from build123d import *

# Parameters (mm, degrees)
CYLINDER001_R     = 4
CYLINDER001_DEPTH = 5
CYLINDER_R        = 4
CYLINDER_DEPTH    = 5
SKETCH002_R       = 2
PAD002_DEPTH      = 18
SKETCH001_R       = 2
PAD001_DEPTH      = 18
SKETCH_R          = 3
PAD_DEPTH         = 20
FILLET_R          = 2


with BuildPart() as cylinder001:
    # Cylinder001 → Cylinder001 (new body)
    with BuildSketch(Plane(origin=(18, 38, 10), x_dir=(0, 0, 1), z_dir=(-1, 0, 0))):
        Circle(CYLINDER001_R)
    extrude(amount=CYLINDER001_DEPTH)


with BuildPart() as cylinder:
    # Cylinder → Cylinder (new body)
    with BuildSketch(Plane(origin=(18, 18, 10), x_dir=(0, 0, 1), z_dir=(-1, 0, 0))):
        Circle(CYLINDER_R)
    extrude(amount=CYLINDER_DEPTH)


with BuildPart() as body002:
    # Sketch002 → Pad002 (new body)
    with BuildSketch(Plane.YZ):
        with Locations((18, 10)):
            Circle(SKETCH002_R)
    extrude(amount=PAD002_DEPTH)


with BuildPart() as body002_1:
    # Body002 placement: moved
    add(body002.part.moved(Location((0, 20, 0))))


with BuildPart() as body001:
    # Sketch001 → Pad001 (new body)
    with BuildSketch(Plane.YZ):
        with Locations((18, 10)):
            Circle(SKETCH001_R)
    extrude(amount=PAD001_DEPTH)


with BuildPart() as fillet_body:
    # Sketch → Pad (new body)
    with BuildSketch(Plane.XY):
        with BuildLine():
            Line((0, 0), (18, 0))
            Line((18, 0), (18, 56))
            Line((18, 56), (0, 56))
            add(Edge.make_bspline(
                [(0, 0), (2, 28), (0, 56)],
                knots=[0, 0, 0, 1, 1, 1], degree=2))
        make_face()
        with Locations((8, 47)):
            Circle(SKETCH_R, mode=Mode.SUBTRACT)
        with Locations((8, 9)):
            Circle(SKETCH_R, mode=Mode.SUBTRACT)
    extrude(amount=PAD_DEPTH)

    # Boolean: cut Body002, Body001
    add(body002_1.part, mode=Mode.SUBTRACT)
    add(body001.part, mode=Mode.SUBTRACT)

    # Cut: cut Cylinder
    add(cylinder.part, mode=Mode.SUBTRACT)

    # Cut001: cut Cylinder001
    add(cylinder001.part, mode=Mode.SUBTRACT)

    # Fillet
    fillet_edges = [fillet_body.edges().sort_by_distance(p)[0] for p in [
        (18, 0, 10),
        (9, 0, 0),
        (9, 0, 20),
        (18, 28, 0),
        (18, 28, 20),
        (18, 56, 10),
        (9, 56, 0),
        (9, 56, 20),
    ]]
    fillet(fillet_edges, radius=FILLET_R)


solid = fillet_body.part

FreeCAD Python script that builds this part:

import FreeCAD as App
import Part
import Sketcher
from FreeCAD import Vector


def edges_at(feature, points):
    """Names of the edges that pass closest to the given points."""
    edges = feature.Shape.Edges
    near = lambda p: min(range(len(edges)), key=lambda i: edges[i].distToShape(Part.Vertex(*p))[0])
    return sorted({f"Edge{near(p) + 1}" for p in points})

doc = App.newDocument("Part")
body = doc.addObject("PartDesign::Body", "Body")

sketch1 = body.newObject("Sketcher::SketchObject", "Sketch")
sketch1.AttachmentSupport = (doc.getObject("YZ_Plane"), [""])
sketch1.MapMode = "FlatFace"
sketch1.AttachmentOffset = App.Placement(Vector(0, 0, 18), App.Rotation())
sketch1.addGeometry(Part.Circle(Vector(38, 10, 0), Vector(0, 0, 1), 4), False)
sketch1.addConstraint([
    Sketcher.Constraint("Diameter", 0, 8.0),
    Sketcher.Constraint("DistanceX", -1, 1, 0, 3, 38.0),
    Sketcher.Constraint("DistanceY", -1, 1, 0, 3, 10.0),
])
pad1 = body.newObject("PartDesign::Pad", "Pad")
pad1.Profile = sketch1
pad1.Length = 5
pad1.Reversed = True
body2 = doc.addObject("PartDesign::Body", "Body001")

sketch2 = body2.newObject("Sketcher::SketchObject", "Sketch001")
sketch2.AttachmentSupport = (doc.getObject("YZ_Plane001"), [""])
sketch2.MapMode = "FlatFace"
sketch2.AttachmentOffset = App.Placement(Vector(0, 0, 18), App.Rotation())
sketch2.addGeometry(Part.Circle(Vector(18, 10, 0), Vector(0, 0, 1), 4), False)
sketch2.addConstraint([
    Sketcher.Constraint("Diameter", 0, 8.0),
    Sketcher.Constraint("DistanceX", -1, 1, 0, 3, 18.0),
    Sketcher.Constraint("DistanceY", -1, 1, 0, 3, 10.0),
])
pad2 = body2.newObject("PartDesign::Pad", "Pad001")
pad2.Profile = sketch2
pad2.Length = 5
pad2.Reversed = True
body3 = doc.addObject("PartDesign::Body", "Body002")

sketch3 = body3.newObject("Sketcher::SketchObject", "Sketch002")
sketch3.AttachmentSupport = (doc.getObject("YZ_Plane002"), [""])
sketch3.MapMode = "FlatFace"
sketch3.addGeometry(Part.Circle(Vector(18, 10, 0), Vector(0, 0, 1), 2), False)
sketch3.addConstraint([
    Sketcher.Constraint("Diameter", 0, 4.0),
    Sketcher.Constraint("DistanceX", -1, 1, 0, 3, 18.0),
    Sketcher.Constraint("DistanceY", -1, 1, 0, 3, 10.0),
])
pad3 = body3.newObject("PartDesign::Pad", "Pad002")
pad3.Profile = sketch3
pad3.Length = 18
body4 = doc.addObject("PartDesign::Body", "Body003")
doc.recompute()

body3.Placement = App.Placement(Vector(0, 20, 0), App.Rotation(Vector(0, 0, 1), 0))
boolean = body4.newObject("PartDesign::Boolean", "Boolean")
boolean.Type = "Fuse"
boolean.addObjects([body3])
body5 = doc.addObject("PartDesign::Body", "Body004")

sketch4 = body5.newObject("Sketcher::SketchObject", "Sketch003")
sketch4.AttachmentSupport = (doc.getObject("YZ_Plane004"), [""])
sketch4.MapMode = "FlatFace"
sketch4.addGeometry(Part.Circle(Vector(18, 10, 0), Vector(0, 0, 1), 2), False)
sketch4.addConstraint([
    Sketcher.Constraint("Diameter", 0, 4.0),
    Sketcher.Constraint("DistanceX", -1, 1, 0, 3, 18.0),
    Sketcher.Constraint("DistanceY", -1, 1, 0, 3, 10.0),
])
pad4 = body5.newObject("PartDesign::Pad", "Pad003")
pad4.Profile = sketch4
pad4.Length = 18
body6 = doc.addObject("PartDesign::Body", "Body005")

sketch5 = body6.newObject("Sketcher::SketchObject", "Sketch004")
sketch5.AttachmentSupport = (doc.getObject("XY_Plane005"), [""])
sketch5.MapMode = "FlatFace"
sketch5.addGeometry([
    Part.LineSegment(Vector(0, 0, 0), Vector(18, 0, 0)),
    Part.LineSegment(Vector(18, 0, 0), Vector(18, 56, 0)),
    Part.LineSegment(Vector(18, 56, 0), Vector(0, 56, 0)),
    Part.BSplineCurve([Vector(0, 0, 0), Vector(2, 28, 0), Vector(0, 56, 0)], [3, 3], [0, 1], False, 2, [1, 1, 1], False),
    Part.Circle(Vector(8, 9, 0), Vector(0, 0, 1), 3),
    Part.Circle(Vector(8, 47, 0), Vector(0, 0, 1), 3),
], False)
sketch5.addConstraint([
    Sketcher.Constraint("Block", 3),
    Sketcher.Constraint("Coincident", 0, 2, 1, 1),
    Sketcher.Constraint("Coincident", 1, 2, 2, 1),
    Sketcher.Constraint("Coincident", 2, 2, 3, 2),
    Sketcher.Constraint("Coincident", 3, 1, 0, 1),
    Sketcher.Constraint("Horizontal", 0),
    Sketcher.Constraint("Vertical", 1),
    Sketcher.Constraint("Horizontal", 2),
    Sketcher.Constraint("Equal", 4, 5),
    Sketcher.Constraint("Vertical", 4, 3, 5, 3),
    Sketcher.Constraint("Diameter", 4, 6.0),
    Sketcher.Constraint("DistanceX", 0, 1, 0, 2, 18.0),
    Sketcher.Constraint("DistanceX", -1, 1, 4, 3, 8.0),
    Sketcher.Constraint("DistanceY", -1, 1, 4, 3, 9.0),
    Sketcher.Constraint("DistanceY", -1, 1, 5, 3, 47.0),
])
pad5 = body6.newObject("PartDesign::Pad", "Pad004")
pad5.Profile = sketch5
pad5.Length = 20
doc.recompute()

boolean2 = body6.newObject("PartDesign::Boolean", "Boolean001")
boolean2.Type = "Cut"
boolean2.addObjects([body4])
doc.recompute()

boolean3 = body6.newObject("PartDesign::Boolean", "Boolean002")
boolean3.Type = "Cut"
boolean3.addObjects([body5])
doc.recompute()

boolean4 = body6.newObject("PartDesign::Boolean", "Boolean003")
boolean4.Type = "Cut"
boolean4.addObjects([body2])
doc.recompute()

boolean5 = body6.newObject("PartDesign::Boolean", "Boolean004")
boolean5.Type = "Cut"
boolean5.addObjects([body])
doc.recompute()

fillet = body6.newObject("PartDesign::Fillet", "Fillet")
fillet.Base = (boolean5, edges_at(boolean5, [
    (18, 0, 10),
    (9, 0, 0),
    (9, 0, 20),
    (18, 28, 0),
    (18, 28, 20),
    (18, 56, 10),
    (9, 56, 0),
    (9, 56, 20),
]))
fillet.Radius = 2

doc.recompute()
